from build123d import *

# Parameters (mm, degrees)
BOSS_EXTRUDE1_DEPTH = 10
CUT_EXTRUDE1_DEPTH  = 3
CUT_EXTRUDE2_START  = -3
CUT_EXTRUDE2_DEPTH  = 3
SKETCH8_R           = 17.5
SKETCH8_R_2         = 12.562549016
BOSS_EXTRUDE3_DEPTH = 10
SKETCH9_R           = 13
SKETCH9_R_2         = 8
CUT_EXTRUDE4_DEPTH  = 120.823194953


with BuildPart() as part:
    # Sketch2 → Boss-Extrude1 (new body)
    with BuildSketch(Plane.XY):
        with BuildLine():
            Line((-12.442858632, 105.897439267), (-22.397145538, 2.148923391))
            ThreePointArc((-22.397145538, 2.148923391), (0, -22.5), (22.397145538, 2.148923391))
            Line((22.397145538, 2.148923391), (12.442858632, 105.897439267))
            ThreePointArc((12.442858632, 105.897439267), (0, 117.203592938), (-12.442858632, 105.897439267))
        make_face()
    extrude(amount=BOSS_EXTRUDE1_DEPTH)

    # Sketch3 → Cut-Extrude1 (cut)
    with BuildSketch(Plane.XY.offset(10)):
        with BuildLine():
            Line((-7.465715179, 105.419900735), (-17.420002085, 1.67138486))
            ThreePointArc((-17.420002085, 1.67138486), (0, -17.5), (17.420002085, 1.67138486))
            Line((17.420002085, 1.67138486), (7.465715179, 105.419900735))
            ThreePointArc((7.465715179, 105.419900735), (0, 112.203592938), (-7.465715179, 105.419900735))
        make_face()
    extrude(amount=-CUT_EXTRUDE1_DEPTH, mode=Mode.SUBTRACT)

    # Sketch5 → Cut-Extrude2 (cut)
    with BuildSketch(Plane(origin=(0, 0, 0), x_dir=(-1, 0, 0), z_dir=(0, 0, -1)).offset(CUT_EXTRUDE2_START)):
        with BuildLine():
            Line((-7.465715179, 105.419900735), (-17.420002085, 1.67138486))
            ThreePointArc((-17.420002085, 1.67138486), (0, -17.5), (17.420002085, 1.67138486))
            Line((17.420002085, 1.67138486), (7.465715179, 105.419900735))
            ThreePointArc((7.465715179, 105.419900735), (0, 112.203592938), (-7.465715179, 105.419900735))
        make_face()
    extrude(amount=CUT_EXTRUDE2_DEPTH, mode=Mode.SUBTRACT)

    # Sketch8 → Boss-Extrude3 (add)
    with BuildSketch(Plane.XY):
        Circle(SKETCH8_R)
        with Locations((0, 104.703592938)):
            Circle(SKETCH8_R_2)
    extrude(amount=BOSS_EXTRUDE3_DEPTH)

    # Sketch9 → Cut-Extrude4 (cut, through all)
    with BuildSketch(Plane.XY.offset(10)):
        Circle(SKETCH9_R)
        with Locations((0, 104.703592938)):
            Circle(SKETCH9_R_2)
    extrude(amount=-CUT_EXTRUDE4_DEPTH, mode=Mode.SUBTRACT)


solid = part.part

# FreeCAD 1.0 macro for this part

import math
import FreeCAD as App
import Part
import Sketcher
from FreeCAD import Vector

doc = App.newDocument("Part")
body = doc.addObject("PartDesign::Body", "Body")

sketch1 = body.newObject("Sketcher::SketchObject", "Sketch")
sketch1.AttachmentSupport = (doc.getObject("XY_Plane"), [""])
sketch1.MapMode = "FlatFace"
sketch1.addGeometry(Part.LineSegment(Vector(-12, 106, 0), Vector(-22, 2, 0)), False)
sketch1.addGeometry(Part.ArcOfCircle(Part.Circle(Vector(0, 0, 0), Vector(0, 0, 1), 22), math.radians(175), math.radians(365)), False)
sketch1.addGeometry(Part.LineSegment(Vector(22, 2, 0), Vector(12, 106, 0)), False)
sketch1.addGeometry(Part.ArcOfCircle(Part.Circle(Vector(0, 105, 0), Vector(0, 0, 1), 12), math.radians(5), math.radians(175)), False)
sketch1.addConstraint(Sketcher.Constraint("Tangent", 0, 2, 1, 1))
sketch1.addConstraint(Sketcher.Constraint("Tangent", 1, 2, 2, 1))
sketch1.addConstraint(Sketcher.Constraint("Tangent", 2, 2, 3, 1))
sketch1.addConstraint(Sketcher.Constraint("Tangent", 3, 2, 0, 1))
sketch1.addConstraint(Sketcher.Constraint("Coincident", 1, 3, -1, 1))
sketch1.addConstraint(Sketcher.Constraint("PointOnObject", 3, 3, -2))
sketch1.addConstraint(Sketcher.Constraint("Radius", 1, 22.5))
sketch1.addConstraint(Sketcher.Constraint("Radius", 3, 12.5))
sketch1.addConstraint(Sketcher.Constraint("Distance", 0, 104.22496))
pad1 = body.newObject("PartDesign::Pad", "Pad")
pad1.Profile = sketch1
pad1.Length = 10

sketch2 = body.newObject("Sketcher::SketchObject", "Sketch001")
sketch2.AttachmentSupport = (doc.getObject("XY_Plane"), [""])
sketch2.MapMode = "FlatFace"
sketch2.AttachmentOffset = App.Placement(Vector(0, 0, 10), App.Rotation())
sketch2.addGeometry(Part.LineSegment(Vector(-7, 105, 0), Vector(-17, 2, 0)), False)
sketch2.addGeometry(Part.ArcOfCircle(Part.Circle(Vector(0, 0, 0), Vector(0, 0, 1), 18), math.radians(175), math.radians(365)), False)
sketch2.addGeometry(Part.LineSegment(Vector(17, 2, 0), Vector(7, 105, 0)), False)
sketch2.addGeometry(Part.ArcOfCircle(Part.Circle(Vector(0, 105, 0), Vector(0, 0, 1), 8), math.radians(5), math.radians(175)), False)
sketch2.addConstraint(Sketcher.Constraint("Tangent", 0, 2, 1, 1))
sketch2.addConstraint(Sketcher.Constraint("Tangent", 1, 2, 2, 1))
sketch2.addConstraint(Sketcher.Constraint("Tangent", 2, 2, 3, 1))
sketch2.addConstraint(Sketcher.Constraint("Tangent", 3, 2, 0, 1))
sketch2.addConstraint(Sketcher.Constraint("Coincident", 1, 3, -1, 1))
sketch2.addConstraint(Sketcher.Constraint("PointOnObject", 3, 3, -2))
sketch2.addConstraint(Sketcher.Constraint("Radius", 1, 17.5))
sketch2.addConstraint(Sketcher.Constraint("Radius", 3, 7.5))
sketch2.addConstraint(Sketcher.Constraint("DistanceY", -1, 1, 2, 2, 105.419901))
pocket1 = body.newObject("PartDesign::Pocket", "Pocket")
pocket1.Profile = sketch2
pocket1.Length = 3

sketch3 = body.newObject("Sketcher::SketchObject", "Sketch002")
sketch3.AttachmentSupport = (doc.getObject("XY_Plane"), [""])
sketch3.MapMode = "FlatFace"
sketch3.AttachmentOffset = App.Placement(Vector(0, 0, 3), App.Rotation())
sketch3.addGeometry(Part.LineSegment(Vector(7, 105, 0), Vector(17, 2, 0)), False)
sketch3.addGeometry(Part.ArcOfCircle(Part.Circle(Vector(0, 0, 0), Vector(0, 0, 1), 18), math.radians(175), math.radians(365)), False)
sketch3.addGeometry(Part.LineSegment(Vector(-17, 2, 0), Vector(-7, 105, 0)), False)
sketch3.addGeometry(Part.ArcOfCircle(Part.Circle(Vector(0, 105, 0), Vector(0, 0, 1), 8), math.radians(5), math.radians(175)), False)
sketch3.addConstraint(Sketcher.Constraint("Tangent", 0, 2, 1, 2))
sketch3.addConstraint(Sketcher.Constraint("Tangent", 1, 1, 2, 1))
sketch3.addConstraint(Sketcher.Constraint("Tangent", 2, 2, 3, 2))
sketch3.addConstraint(Sketcher.Constraint("Tangent", 3, 1, 0, 1))
sketch3.addConstraint(Sketcher.Constraint("Coincident", 1, 3, -1, 1))
sketch3.addConstraint(Sketcher.Constraint("PointOnObject", 3, 3, -2))
sketch3.addConstraint(Sketcher.Constraint("Radius", 1, 17.5))
sketch3.addConstraint(Sketcher.Constraint("Radius", 3, 7.5))
sketch3.addConstraint(Sketcher.Constraint("DistanceY", -1, 1, 2, 2, 105.419901))
pocket2 = body.newObject("PartDesign::Pocket", "Pocket001")
pocket2.Profile = sketch3
pocket2.Length = 3

sketch4 = body.newObject("Sketcher::SketchObject", "Sketch003")
sketch4.AttachmentSupport = (doc.getObject("XY_Plane"), [""])
sketch4.MapMode = "FlatFace"
sketch4.addGeometry(Part.Circle(Vector(0, 0, 0), Vector(0, 0, 1), 18), False)
sketch4.addGeometry(Part.Circle(Vector(0, 105, 0), Vector(0, 0, 1), 13), False)
sketch4.addConstraint(Sketcher.Constraint("Coincident", 0, 3, -1, 1))
sketch4.addConstraint(Sketcher.Constraint("PointOnObject", 1, 3, -2))
sketch4.addConstraint(Sketcher.Constraint("Diameter", 0, 35.0))
sketch4.addConstraint(Sketcher.Constraint("Diameter", 1, 25.125098))
sketch4.addConstraint(Sketcher.Constraint("DistanceY", -1, 1, 1, 3, 104.703593))
pad2 = body.newObject("PartDesign::Pad", "Pad001")
pad2.Profile = sketch4
pad2.Length = 10

sketch5 = body.newObject("Sketcher::SketchObject", "Sketch004")
sketch5.AttachmentSupport = (doc.getObject("XY_Plane"), [""])
sketch5.MapMode = "FlatFace"
sketch5.AttachmentOffset = App.Placement(Vector(0, 0, 10), App.Rotation())
sketch5.addGeometry(Part.Circle(Vector(0, 0, 0), Vector(0, 0, 1), 13), False)
sketch5.addGeometry(Part.Circle(Vector(0, 105, 0), Vector(0, 0, 1), 8), False)
sketch5.addConstraint(Sketcher.Constraint("Coincident", 0, 3, -1, 1))
sketch5.addConstraint(Sketcher.Constraint("PointOnObject", 1, 3, -2))
sketch5.addConstraint(Sketcher.Constraint("Diameter", 0, 26.0))
sketch5.addConstraint(Sketcher.Constraint("Diameter", 1, 16.0))
sketch5.addConstraint(Sketcher.Constraint("DistanceY", -1, 1, 1, 3, 104.703593))
pocket3 = body.newObject("PartDesign::Pocket", "Pocket002")
pocket3.Profile = sketch5
pocket3.Type = "ThroughAll"

doc.recompute()
